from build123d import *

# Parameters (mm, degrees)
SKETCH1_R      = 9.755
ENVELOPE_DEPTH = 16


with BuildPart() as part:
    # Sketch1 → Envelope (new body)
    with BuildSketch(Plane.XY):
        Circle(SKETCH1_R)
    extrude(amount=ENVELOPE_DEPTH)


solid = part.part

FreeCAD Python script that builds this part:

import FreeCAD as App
import Part
import Sketcher

doc = App.newDocument("Part")
body = doc.addObject("PartDesign::Body", "Body")

# Sketch on XY plane
sketch1 = body.newObject("Sketcher::SketchObject", "Sketch")
sketch1.AttachmentSupport = (doc.getObject("XY_Plane"), [""])
sketch1.MapMode = "FlatFace"
sketch1.addGeometry(Part.Circle(App.Vector(0, 0, 0), App.Vector(0, 0, 1), 10), False)
sketch1.addConstraint([
    Sketcher.Constraint("Coincident", 0, 3, -1, 1),
    Sketcher.Constraint("Diameter", 0, 19.51),
])
pad1 = body.newObject("PartDesign::Pad", "Pad")
pad1.Profile = sketch1
pad1.Length = 16

doc.recompute()
